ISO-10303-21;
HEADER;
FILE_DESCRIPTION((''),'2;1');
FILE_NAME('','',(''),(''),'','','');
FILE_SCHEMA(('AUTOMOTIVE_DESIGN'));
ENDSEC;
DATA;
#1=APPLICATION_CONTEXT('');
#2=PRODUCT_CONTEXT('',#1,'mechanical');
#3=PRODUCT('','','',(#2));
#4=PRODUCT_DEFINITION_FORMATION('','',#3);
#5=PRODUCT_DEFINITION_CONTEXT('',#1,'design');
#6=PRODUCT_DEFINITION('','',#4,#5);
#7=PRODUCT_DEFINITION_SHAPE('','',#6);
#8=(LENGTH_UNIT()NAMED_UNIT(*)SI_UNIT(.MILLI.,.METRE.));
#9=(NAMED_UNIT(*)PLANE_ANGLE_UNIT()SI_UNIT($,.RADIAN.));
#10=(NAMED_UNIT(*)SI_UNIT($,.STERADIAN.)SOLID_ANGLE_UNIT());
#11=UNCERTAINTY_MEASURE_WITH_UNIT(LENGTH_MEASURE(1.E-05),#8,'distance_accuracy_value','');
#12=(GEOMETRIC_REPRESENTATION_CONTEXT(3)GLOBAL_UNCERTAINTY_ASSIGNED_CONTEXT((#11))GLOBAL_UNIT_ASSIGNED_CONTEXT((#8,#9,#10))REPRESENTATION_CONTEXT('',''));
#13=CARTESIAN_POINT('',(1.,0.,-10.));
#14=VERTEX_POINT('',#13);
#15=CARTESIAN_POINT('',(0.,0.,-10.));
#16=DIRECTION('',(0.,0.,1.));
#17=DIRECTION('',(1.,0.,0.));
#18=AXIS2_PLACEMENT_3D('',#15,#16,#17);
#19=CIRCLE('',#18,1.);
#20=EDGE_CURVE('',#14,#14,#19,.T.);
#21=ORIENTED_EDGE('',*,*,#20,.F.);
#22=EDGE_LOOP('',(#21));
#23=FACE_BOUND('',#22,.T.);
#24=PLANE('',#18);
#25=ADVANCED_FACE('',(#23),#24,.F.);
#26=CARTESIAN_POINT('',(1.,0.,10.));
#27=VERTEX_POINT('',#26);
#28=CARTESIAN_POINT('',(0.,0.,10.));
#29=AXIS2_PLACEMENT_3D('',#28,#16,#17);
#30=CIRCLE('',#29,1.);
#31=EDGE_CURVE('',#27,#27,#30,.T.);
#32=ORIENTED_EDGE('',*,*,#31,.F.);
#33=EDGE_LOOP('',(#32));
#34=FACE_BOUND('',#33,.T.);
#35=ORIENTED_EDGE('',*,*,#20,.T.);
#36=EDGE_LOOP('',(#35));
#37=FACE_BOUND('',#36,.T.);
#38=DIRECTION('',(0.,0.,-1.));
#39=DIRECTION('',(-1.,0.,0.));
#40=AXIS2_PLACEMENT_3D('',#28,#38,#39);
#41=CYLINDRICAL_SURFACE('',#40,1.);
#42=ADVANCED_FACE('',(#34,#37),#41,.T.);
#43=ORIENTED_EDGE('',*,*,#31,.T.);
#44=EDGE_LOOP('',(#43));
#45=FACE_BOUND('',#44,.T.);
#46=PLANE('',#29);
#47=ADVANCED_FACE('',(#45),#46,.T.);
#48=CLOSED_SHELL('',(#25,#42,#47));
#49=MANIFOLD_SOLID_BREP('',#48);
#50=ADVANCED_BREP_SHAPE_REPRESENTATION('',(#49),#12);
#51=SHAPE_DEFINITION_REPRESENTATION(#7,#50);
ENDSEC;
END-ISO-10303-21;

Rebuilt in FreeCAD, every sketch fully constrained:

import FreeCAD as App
import Part
import Sketcher
from FreeCAD import Vector
Q = App.Units.Quantity

doc = App.newDocument("Part")
params = doc.addObject("Spreadsheet::Sheet", "Params")
for row, (alias, value) in enumerate([
    ("sketch1_diameter", "2 mm"),
    ("pad1_length", "20 mm"),
], start=1):
    params.set(f"A{row}", alias)
    params.set(f"B{row}", "=" + value)
    params.setAlias(f"B{row}", alias)

body = doc.addObject("PartDesign::Body", "Body")

sketch1 = doc.addObject("Sketcher::SketchObject", "Sketch")
body.addObject(sketch1)
sketch1.AttachmentSupport = (doc.XY_Plane, [""])
sketch1.MapMode = "FlatFace"
sketch1.addGeometry(Part.Circle(Vector(0, 0, 0), Vector(0, 0, 1), 1), False)
sketch1.addConstraint(Sketcher.Constraint("Coincident", 0, 3, -1, 1))
sketch1.addConstraint(Sketcher.Constraint("Diameter", 0, Q("2 mm")))
sketch1.setExpression("Constraints[1]", "Params.sketch1_diameter")
pad1 = doc.addObject("PartDesign::Pad", "Pad")
body.addObject(pad1)
pad1.Profile = sketch1
pad1.setExpression("Length", "Params.pad1_length")
pad1.Midplane = True

doc.recompute()
